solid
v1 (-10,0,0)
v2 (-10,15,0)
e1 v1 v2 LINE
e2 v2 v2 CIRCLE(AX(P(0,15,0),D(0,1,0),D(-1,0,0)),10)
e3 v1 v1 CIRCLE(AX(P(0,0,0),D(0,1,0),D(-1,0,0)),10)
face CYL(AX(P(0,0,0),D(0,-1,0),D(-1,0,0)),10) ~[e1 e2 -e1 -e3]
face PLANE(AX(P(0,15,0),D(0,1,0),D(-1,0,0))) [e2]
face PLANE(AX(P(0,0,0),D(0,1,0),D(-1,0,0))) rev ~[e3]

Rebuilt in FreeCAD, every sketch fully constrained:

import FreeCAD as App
import Part
import Sketcher
from FreeCAD import Vector
Q = App.Units.Quantity

doc = App.newDocument("Part")
body = doc.addObject("PartDesign::Body", "Body")

sketch1 = doc.addObject("Sketcher::SketchObject", "Sketch")
body.addObject(sketch1)
sketch1.AttachmentSupport = (doc.XZ_Plane, [""])
sketch1.MapMode = "FlatFace"
sketch1.addGeometry(Part.Circle(Vector(0, 0, 0), Vector(0, 0, 1), 10), False)
sketch1.addConstraint([
    Sketcher.Constraint("Coincident", 0, 3, -1, 1),
    Sketcher.Constraint("Diameter", 0, Q("20 mm")),
])
pad1 = doc.addObject("PartDesign::Pad", "Pad")
body.addObject(pad1)
pad1.Profile = sketch1
pad1.Length = 15
pad1.Reversed = True

doc.recompute()
